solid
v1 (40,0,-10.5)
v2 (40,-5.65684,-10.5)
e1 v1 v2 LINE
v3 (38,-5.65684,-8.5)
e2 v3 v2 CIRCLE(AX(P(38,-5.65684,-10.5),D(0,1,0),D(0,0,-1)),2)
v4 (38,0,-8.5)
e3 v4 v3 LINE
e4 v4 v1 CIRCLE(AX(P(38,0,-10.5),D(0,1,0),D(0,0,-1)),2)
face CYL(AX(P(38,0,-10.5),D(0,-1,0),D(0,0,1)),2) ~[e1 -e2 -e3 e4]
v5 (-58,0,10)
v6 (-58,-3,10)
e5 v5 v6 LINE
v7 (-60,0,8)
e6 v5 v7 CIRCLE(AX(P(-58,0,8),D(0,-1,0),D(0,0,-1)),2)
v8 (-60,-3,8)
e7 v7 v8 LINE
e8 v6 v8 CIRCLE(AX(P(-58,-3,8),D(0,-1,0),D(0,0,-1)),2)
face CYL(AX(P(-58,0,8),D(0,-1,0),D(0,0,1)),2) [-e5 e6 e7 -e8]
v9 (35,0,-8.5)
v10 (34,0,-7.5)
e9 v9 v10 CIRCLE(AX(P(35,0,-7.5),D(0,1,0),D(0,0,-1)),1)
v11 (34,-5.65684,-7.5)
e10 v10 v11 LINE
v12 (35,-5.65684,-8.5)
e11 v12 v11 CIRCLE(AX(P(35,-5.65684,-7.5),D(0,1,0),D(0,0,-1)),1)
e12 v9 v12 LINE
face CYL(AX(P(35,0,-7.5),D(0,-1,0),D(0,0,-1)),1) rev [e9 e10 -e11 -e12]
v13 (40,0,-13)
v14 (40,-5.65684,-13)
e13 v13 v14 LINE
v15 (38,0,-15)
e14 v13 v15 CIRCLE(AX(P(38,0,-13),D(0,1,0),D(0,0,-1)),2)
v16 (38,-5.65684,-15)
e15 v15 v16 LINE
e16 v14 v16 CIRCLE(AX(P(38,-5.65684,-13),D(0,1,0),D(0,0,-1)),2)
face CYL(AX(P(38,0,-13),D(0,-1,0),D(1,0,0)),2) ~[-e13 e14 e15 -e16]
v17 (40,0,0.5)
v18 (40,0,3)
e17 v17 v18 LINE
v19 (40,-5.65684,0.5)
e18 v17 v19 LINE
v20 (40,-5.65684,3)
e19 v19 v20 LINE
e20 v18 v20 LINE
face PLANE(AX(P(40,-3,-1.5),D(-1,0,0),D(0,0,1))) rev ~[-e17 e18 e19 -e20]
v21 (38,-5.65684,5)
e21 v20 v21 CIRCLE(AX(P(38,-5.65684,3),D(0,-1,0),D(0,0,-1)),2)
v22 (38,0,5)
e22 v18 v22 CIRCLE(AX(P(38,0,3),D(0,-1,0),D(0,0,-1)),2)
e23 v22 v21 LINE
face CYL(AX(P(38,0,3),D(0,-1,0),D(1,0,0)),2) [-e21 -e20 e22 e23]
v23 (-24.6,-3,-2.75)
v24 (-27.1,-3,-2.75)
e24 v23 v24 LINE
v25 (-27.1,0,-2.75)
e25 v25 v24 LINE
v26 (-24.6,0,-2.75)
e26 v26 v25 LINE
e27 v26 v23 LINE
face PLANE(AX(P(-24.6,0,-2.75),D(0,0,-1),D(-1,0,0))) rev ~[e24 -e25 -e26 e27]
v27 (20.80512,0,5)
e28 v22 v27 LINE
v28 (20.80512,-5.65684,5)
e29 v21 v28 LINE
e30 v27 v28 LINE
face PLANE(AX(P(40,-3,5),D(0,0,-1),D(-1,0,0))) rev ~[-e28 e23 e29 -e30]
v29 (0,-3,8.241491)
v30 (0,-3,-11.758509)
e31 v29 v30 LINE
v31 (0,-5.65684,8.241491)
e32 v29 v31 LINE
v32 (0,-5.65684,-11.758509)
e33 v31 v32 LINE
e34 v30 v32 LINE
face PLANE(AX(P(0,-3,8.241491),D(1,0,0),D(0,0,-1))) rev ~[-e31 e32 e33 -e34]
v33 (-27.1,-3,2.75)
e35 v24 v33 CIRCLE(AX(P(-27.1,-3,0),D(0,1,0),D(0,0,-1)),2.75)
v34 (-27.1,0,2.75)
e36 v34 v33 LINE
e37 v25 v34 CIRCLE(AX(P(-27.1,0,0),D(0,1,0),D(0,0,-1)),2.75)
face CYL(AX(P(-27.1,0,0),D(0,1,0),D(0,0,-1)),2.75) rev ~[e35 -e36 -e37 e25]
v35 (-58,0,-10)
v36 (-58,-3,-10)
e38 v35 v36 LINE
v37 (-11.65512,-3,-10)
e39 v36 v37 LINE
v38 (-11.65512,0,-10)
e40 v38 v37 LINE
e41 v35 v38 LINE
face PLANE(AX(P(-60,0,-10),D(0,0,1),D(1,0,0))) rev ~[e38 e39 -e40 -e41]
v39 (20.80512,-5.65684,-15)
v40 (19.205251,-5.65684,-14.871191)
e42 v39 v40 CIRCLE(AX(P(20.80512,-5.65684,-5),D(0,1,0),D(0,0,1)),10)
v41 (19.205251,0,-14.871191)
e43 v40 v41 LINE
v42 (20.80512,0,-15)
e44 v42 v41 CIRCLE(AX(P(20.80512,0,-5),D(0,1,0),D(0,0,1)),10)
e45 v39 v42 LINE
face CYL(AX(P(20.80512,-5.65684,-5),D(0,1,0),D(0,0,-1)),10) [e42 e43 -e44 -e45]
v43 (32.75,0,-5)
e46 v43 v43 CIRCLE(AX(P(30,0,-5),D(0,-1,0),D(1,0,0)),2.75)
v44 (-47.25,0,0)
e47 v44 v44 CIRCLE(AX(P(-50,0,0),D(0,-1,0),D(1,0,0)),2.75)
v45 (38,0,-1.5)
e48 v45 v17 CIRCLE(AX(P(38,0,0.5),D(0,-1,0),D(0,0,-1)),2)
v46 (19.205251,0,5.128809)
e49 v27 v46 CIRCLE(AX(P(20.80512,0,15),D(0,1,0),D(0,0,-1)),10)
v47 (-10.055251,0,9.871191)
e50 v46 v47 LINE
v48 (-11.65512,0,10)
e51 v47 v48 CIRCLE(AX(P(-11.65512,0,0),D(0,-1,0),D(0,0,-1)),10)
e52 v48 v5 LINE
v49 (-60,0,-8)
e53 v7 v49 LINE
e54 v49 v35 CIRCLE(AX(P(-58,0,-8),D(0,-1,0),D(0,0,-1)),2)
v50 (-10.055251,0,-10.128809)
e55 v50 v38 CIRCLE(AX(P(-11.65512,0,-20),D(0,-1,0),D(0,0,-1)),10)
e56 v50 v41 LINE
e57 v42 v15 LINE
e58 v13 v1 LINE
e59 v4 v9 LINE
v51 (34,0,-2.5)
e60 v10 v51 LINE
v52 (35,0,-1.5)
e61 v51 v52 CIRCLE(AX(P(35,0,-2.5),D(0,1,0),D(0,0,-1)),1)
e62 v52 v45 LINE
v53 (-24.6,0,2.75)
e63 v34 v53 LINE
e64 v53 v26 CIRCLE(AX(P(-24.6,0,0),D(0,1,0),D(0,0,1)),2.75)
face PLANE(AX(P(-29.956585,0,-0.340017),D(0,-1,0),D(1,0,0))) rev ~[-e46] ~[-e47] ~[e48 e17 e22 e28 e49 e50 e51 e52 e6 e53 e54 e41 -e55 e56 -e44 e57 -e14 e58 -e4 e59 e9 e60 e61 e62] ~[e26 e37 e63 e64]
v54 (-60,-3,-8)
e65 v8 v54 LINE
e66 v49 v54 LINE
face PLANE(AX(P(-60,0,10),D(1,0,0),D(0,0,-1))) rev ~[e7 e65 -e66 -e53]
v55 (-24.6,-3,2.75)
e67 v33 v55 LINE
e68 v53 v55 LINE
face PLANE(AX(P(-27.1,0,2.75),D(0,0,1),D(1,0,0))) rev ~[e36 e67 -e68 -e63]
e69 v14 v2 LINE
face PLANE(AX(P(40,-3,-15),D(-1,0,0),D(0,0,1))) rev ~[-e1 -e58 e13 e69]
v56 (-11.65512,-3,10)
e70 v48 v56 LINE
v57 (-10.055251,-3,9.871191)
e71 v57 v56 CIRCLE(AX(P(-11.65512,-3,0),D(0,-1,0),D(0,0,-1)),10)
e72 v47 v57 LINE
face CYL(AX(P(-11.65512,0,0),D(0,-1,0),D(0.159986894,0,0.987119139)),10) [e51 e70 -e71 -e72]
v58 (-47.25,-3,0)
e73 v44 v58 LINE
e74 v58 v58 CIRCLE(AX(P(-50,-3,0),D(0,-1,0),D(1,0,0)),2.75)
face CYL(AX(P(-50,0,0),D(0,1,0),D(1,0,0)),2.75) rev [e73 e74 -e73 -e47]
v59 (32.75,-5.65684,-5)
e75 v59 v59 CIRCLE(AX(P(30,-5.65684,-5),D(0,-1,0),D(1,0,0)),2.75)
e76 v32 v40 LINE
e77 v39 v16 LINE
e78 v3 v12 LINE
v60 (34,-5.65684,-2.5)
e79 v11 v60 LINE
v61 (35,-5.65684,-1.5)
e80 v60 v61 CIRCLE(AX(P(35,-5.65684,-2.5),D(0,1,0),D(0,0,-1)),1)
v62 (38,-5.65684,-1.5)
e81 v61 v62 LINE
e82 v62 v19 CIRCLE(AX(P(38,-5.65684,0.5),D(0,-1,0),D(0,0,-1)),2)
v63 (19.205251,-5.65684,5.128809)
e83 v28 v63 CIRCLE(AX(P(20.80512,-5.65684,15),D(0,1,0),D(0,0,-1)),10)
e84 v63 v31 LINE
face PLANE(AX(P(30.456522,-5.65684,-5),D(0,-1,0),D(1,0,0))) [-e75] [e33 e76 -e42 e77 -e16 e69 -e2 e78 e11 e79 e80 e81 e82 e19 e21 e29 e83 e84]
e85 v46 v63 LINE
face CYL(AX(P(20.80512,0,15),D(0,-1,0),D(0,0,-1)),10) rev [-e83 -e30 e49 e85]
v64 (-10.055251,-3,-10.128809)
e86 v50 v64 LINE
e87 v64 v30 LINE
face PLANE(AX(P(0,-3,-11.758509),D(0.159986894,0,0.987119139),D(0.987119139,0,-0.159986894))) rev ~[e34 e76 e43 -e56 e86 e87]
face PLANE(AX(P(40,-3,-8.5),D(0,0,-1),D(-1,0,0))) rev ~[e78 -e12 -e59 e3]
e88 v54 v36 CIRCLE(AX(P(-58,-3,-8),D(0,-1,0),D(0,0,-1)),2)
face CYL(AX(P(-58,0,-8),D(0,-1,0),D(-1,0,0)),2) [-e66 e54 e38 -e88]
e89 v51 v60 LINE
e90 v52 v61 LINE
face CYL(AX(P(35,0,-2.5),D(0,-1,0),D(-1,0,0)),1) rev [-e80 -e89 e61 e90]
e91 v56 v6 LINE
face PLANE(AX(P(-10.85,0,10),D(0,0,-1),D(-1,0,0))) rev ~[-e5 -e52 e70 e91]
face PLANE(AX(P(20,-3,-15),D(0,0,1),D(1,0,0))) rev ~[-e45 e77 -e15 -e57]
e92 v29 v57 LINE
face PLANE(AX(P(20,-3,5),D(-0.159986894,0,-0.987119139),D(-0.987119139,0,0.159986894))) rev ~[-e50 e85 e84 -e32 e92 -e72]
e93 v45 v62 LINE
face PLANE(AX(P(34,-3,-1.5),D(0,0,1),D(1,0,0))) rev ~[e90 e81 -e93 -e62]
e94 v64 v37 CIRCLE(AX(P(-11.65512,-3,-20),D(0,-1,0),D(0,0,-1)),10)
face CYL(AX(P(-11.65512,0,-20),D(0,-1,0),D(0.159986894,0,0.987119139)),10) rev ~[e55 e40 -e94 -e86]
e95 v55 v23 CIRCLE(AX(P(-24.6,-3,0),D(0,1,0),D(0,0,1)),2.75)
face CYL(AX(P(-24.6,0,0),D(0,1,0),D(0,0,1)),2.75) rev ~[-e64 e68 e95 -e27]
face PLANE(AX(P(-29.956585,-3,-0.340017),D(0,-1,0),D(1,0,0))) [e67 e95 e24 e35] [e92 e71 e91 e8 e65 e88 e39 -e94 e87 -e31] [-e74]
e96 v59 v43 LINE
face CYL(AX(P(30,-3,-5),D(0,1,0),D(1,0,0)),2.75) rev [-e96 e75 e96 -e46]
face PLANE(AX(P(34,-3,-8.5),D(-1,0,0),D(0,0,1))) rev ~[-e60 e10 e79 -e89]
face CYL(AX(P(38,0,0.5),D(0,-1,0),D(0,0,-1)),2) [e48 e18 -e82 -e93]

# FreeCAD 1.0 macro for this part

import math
import FreeCAD as App
import Part
import Sketcher


def edges_at(feature, points):
    """Names of the edges that pass closest to the given points."""
    edges = feature.Shape.Edges
    near = lambda p: min(range(len(edges)), key=lambda i: edges[i].distToShape(Part.Vertex(*p))[0])
    return sorted({f"Edge{near(p) + 1}" for p in points})

doc = App.newDocument("Part")
body = doc.addObject("PartDesign::Body", "Body")

# Sketch on XZ plane
sketch1 = body.newObject("Sketcher::SketchObject", "Sketch")
sketch1.AttachmentSupport = (doc.getObject("XZ_Plane"), [""])
sketch1.MapMode = "FlatFace"
sketch1.addGeometry(Part.LineSegment(App.Vector(-10.8, 10, 0), App.Vector(-60, 10, 0)), False)
sketch1.addGeometry(Part.LineSegment(App.Vector(-60, 10, 0), App.Vector(-60, -10, 0)), False)
sketch1.addGeometry(Part.LineSegment(App.Vector(-60, -10, 0), App.Vector(-10.8, -10, 0)), False)
sketch1.addGeometry(Part.LineSegment(App.Vector(-10.8, -10, 0), App.Vector(20, -15, 0)), False)
sketch1.addGeometry(Part.LineSegment(App.Vector(20, -15, 0), App.Vector(40, -15, 0)), False)
sketch1.addGeometry(Part.LineSegment(App.Vector(40, -15, 0), App.Vector(40, -8.5, 0)), False)
sketch1.addGeometry(Part.LineSegment(App.Vector(40, -8.5, 0), App.Vector(34, -8.5, 0)), False)
sketch1.addGeometry(Part.LineSegment(App.Vector(34, -8.5, 0), App.Vector(34, -1.5, 0)), False)
sketch1.addGeometry(Part.LineSegment(App.Vector(34, -1.5, 0), App.Vector(40, -1.5, 0)), False)
sketch1.addGeometry(Part.LineSegment(App.Vector(40, -1.5, 0), App.Vector(40, 5, 0)), False)
sketch1.addGeometry(Part.LineSegment(App.Vector(40, 5, 0), App.Vector(20, 5, 0)), False)
sketch1.addGeometry(Part.LineSegment(App.Vector(20, 5, 0), App.Vector(-10.8, 10, 0)), False)
sketch1.addGeometry(Part.Circle(App.Vector(30, -5, 0), App.Vector(0, 0, 1), 2.8), False)
sketch1.addGeometry(Part.Circle(App.Vector(-50, 0, 0), App.Vector(0, 0, 1), 2.8), False)
sketch1.addGeometry(Part.LineSegment(App.Vector(-24.6, -2.8, 0), App.Vector(-27.1, -2.8, 0)), False)
sketch1.addGeometry(Part.ArcOfCircle(Part.Circle(App.Vector(-27.1, 0, 0), App.Vector(0, 0, 1), 2.8), math.radians(90), math.radians(270)), False)
sketch1.addGeometry(Part.LineSegment(App.Vector(-27.1, 2.8, 0), App.Vector(-24.6, 2.8, 0)), False)
sketch1.addGeometry(Part.ArcOfCircle(Part.Circle(App.Vector(-24.6, 0, 0), App.Vector(0, 0, 1), 2.8), math.radians(-90), math.radians(90)), False)
sketch1.addConstraint(Sketcher.Constraint("Coincident", 0, 2, 1, 1))
sketch1.addConstraint(Sketcher.Constraint("Coincident", 1, 2, 2, 1))
sketch1.addConstraint(Sketcher.Constraint("Coincident", 2, 2, 3, 1))
sketch1.addConstraint(Sketcher.Constraint("Coincident", 3, 2, 4, 1))
sketch1.addConstraint(Sketcher.Constraint("Coincident", 4, 2, 5, 1))
sketch1.addConstraint(Sketcher.Constraint("Coincident", 5, 2, 6, 1))
sketch1.addConstraint(Sketcher.Constraint("Coincident", 6, 2, 7, 1))
sketch1.addConstraint(Sketcher.Constraint("Coincident", 7, 2, 8, 1))
sketch1.addConstraint(Sketcher.Constraint("Coincident", 8, 2, 9, 1))
sketch1.addConstraint(Sketcher.Constraint("Coincident", 9, 2, 10, 1))
sketch1.addConstraint(Sketcher.Constraint("Coincident", 10, 2, 11, 1))
sketch1.addConstraint(Sketcher.Constraint("Coincident", 11, 2, 0, 1))
sketch1.addConstraint(Sketcher.Constraint("Tangent", 14, 2, 15, 2))
sketch1.addConstraint(Sketcher.Constraint("Tangent", 15, 1, 16, 1))
sketch1.addConstraint(Sketcher.Constraint("Tangent", 16, 2, 17, 2))
sketch1.addConstraint(Sketcher.Constraint("Tangent", 17, 1, 14, 1))
sketch1.addConstraint(Sketcher.Constraint("Horizontal", 0))
sketch1.addConstraint(Sketcher.Constraint("Vertical", 1))
sketch1.addConstraint(Sketcher.Constraint("Horizontal", 2))
sketch1.addConstraint(Sketcher.Constraint("Horizontal", 4))
sketch1.addConstraint(Sketcher.Constraint("Vertical", 5))
sketch1.addConstraint(Sketcher.Constraint("Horizontal", 6))
sketch1.addConstraint(Sketcher.Constraint("Vertical", 7))
sketch1.addConstraint(Sketcher.Constraint("Horizontal", 8))
sketch1.addConstraint(Sketcher.Constraint("Vertical", 9))
sketch1.addConstraint(Sketcher.Constraint("Horizontal", 10))
sketch1.addConstraint(Sketcher.Constraint("Horizontal", 14))
sketch1.addConstraint(Sketcher.Constraint("Horizontal", 16))
sketch1.addConstraint(Sketcher.Constraint("Equal", 12, 13))
sketch1.addConstraint(Sketcher.Constraint("Equal", 13, 15))
sketch1.addConstraint(Sketcher.Constraint("Symmetric", 2, 2, 11, 2, -1))
sketch1.addConstraint(Sketcher.Constraint("PointOnObject", 13, 3, -1))
sketch1.addConstraint(Sketcher.Constraint("PointOnObject", 15, 3, -1))
sketch1.addConstraint(Sketcher.Constraint("Parallel", 3, 11))
sketch1.addConstraint(Sketcher.Constraint("Vertical", 5, 2, 8, 2))
sketch1.addConstraint(Sketcher.Constraint("Vertical", 3, 2, 10, 2))
sketch1.addConstraint(Sketcher.Constraint("Equal", 10, 1))
sketch1.addConstraint(Sketcher.Constraint("Equal", 5, 9))
sketch1.addConstraint(Sketcher.Constraint("Diameter", 12, 5.5))
sketch1.addConstraint(Sketcher.Constraint("DistanceX", 4, 1, 4, 2, 20.0))
sketch1.addConstraint(Sketcher.Constraint("DistanceX", 6, 2, 6, 1, 6.0))
sketch1.addConstraint(Sketcher.Constraint("DistanceY", 7, 1, 7, 2, 7.0))
sketch1.addConstraint(Sketcher.Constraint("DistanceX", 14, 2, 14, 1, 2.5))
sketch1.addConstraint(Sketcher.Constraint("DistanceX", -1, 1, 12, 3, 30.0))
sketch1.addConstraint(Sketcher.Constraint("DistanceY", 12, 3, -1, 1, 5.0))
sketch1.addConstraint(Sketcher.Constraint("DistanceX", 13, 3, -1, 1, 50.0))
sketch1.addConstraint(Sketcher.Constraint("DistanceX", 0, 2, -1, 1, 60.0))
sketch1.addConstraint(Sketcher.Constraint("DistanceX", -1, 1, 3, 2, 20.0))
sketch1.addConstraint(Sketcher.Constraint("DistanceY", 3, 2, -1, 1, 15.0))
sketch1.addConstraint(Sketcher.Constraint("DistanceX", 0, 2, 0, 1, 49.15))
sketch1.addConstraint(Sketcher.Constraint("DistanceX", 15, 3, -1, 1, 27.1))
pad1 = body.newObject("PartDesign::Pad", "Pad")
pad1.Profile = sketch1
pad1.Length = 3

# Sketch on XZ plane
sketch2 = body.newObject("Sketcher::SketchObject", "Sketch001")
sketch2.AttachmentSupport = (doc.getObject("XZ_Plane"), [""])
sketch2.MapMode = "FlatFace"
sketch2.AttachmentOffset = App.Placement(App.Vector(0, 0, 3), App.Rotation())
sketch2.addGeometry(Part.LineSegment(App.Vector(20, -15, 0), App.Vector(40, -15, 0)), False)
sketch2.addGeometry(Part.LineSegment(App.Vector(40, -15, 0), App.Vector(40, -8.5, 0)), False)
sketch2.addGeometry(Part.LineSegment(App.Vector(40, -8.5, 0), App.Vector(34, -8.5, 0)), False)
sketch2.addGeometry(Part.LineSegment(App.Vector(34, -8.5, 0), App.Vector(34, -1.5, 0)), False)
sketch2.addGeometry(Part.LineSegment(App.Vector(34, -1.5, 0), App.Vector(40, -1.5, 0)), False)
sketch2.addGeometry(Part.LineSegment(App.Vector(40, -1.5, 0), App.Vector(40, 5, 0)), False)
sketch2.addGeometry(Part.LineSegment(App.Vector(40, 5, 0), App.Vector(20, 5, 0)), False)
sketch2.addGeometry(Part.LineSegment(App.Vector(20, 5, 0), App.Vector(0, 8.2, 0)), False)
sketch2.addGeometry(Part.LineSegment(App.Vector(0, 8.2, 0), App.Vector(0, -11.8, 0)), False)
sketch2.addGeometry(Part.LineSegment(App.Vector(0, -11.8, 0), App.Vector(20, -15, 0)), False)
sketch2.addGeometry(Part.Circle(App.Vector(30, -5, 0), App.Vector(0, 0, 1), 2.8), False)
sketch2.addConstraint(Sketcher.Constraint("Coincident", 0, 2, 1, 1))
sketch2.addConstraint(Sketcher.Constraint("Coincident", 1, 2, 2, 1))
sketch2.addConstraint(Sketcher.Constraint("Coincident", 2, 2, 3, 1))
sketch2.addConstraint(Sketcher.Constraint("Coincident", 3, 2, 4, 1))
sketch2.addConstraint(Sketcher.Constraint("Coincident", 4, 2, 5, 1))
sketch2.addConstraint(Sketcher.Constraint("Coincident", 5, 2, 6, 1))
sketch2.addConstraint(Sketcher.Constraint("Coincident", 6, 2, 7, 1))
sketch2.addConstraint(Sketcher.Constraint("Coincident", 7, 2, 8, 1))
sketch2.addConstraint(Sketcher.Constraint("Coincident", 8, 2, 9, 1))
sketch2.addConstraint(Sketcher.Constraint("Coincident", 9, 2, 0, 1))
sketch2.addConstraint(Sketcher.Constraint("Horizontal", 0))
sketch2.addConstraint(Sketcher.Constraint("Vertical", 1))
sketch2.addConstraint(Sketcher.Constraint("Horizontal", 2))
sketch2.addConstraint(Sketcher.Constraint("Vertical", 3))
sketch2.addConstraint(Sketcher.Constraint("Horizontal", 4))
sketch2.addConstraint(Sketcher.Constraint("Vertical", 5))
sketch2.addConstraint(Sketcher.Constraint("Horizontal", 6))
sketch2.addConstraint(Sketcher.Constraint("Vertical", 8))
sketch2.addConstraint(Sketcher.Constraint("PointOnObject", 7, 2, -2))
sketch2.addConstraint(Sketcher.Constraint("Parallel", 7, 9))
sketch2.addConstraint(Sketcher.Constraint("Vertical", 1, 2, 4, 2))
sketch2.addConstraint(Sketcher.Constraint("Vertical", 6, 2, 9, 2))
sketch2.addConstraint(Sketcher.Constraint("Equal", 1, 5))
sketch2.addConstraint(Sketcher.Constraint("Equal", 6, 8))
sketch2.addConstraint(Sketcher.Constraint("Diameter", 10, 5.5))
sketch2.addConstraint(Sketcher.Constraint("DistanceX", 0, 1, 0, 2, 20.0))
sketch2.addConstraint(Sketcher.Constraint("DistanceX", 2, 2, 2, 1, 6.0))
sketch2.addConstraint(Sketcher.Constraint("DistanceY", 3, 1, 3, 2, 7.0))
sketch2.addConstraint(Sketcher.Constraint("DistanceX", -1, 1, 10, 3, 30.0))
sketch2.addConstraint(Sketcher.Constraint("DistanceY", 10, 3, -1, 1, 5.0))
sketch2.addConstraint(Sketcher.Constraint("DistanceX", -1, 1, 0, 2, 40.0))
sketch2.addConstraint(Sketcher.Constraint("DistanceY", 0, 2, -1, 1, 15.0))
sketch2.addConstraint(Sketcher.Constraint("Distance", 7, 20.260979))
pad2 = body.newObject("PartDesign::Pad", "Pad001")
pad2.Profile = sketch2
pad2.Length = 2.65684
doc.recompute()

fillet = body.newObject("PartDesign::Fillet", "Fillet")
fillet.Base = (pad2, edges_at(pad2, [(34, -2.828, -1.5), (34, -2.828, -8.5)]))
fillet.Radius = 1
doc.recompute()

fillet2 = body.newObject("PartDesign::Fillet", "Fillet001")
fillet2.Base = (fillet, edges_at(fillet, [
    (40, -2.828, 5),
    (40, -2.828, -8.5),
    (40, -2.828, -1.5),
    (40, -2.828, -15),
    (-60, -1.5, 10),
    (-60, -1.5, -10),
]))
fillet2.Radius = 2
doc.recompute()

fillet3 = body.newObject("PartDesign::Fillet", "Fillet002")
fillet3.Base = (fillet2, edges_at(fillet2, [
    (-10.85, -1.5, 10),
    (20, -2.828, 5),
    (-10.85, -1.5, -10),
    (20, -2.828, -15),
]))
fillet3.Radius = 10

doc.recompute()
